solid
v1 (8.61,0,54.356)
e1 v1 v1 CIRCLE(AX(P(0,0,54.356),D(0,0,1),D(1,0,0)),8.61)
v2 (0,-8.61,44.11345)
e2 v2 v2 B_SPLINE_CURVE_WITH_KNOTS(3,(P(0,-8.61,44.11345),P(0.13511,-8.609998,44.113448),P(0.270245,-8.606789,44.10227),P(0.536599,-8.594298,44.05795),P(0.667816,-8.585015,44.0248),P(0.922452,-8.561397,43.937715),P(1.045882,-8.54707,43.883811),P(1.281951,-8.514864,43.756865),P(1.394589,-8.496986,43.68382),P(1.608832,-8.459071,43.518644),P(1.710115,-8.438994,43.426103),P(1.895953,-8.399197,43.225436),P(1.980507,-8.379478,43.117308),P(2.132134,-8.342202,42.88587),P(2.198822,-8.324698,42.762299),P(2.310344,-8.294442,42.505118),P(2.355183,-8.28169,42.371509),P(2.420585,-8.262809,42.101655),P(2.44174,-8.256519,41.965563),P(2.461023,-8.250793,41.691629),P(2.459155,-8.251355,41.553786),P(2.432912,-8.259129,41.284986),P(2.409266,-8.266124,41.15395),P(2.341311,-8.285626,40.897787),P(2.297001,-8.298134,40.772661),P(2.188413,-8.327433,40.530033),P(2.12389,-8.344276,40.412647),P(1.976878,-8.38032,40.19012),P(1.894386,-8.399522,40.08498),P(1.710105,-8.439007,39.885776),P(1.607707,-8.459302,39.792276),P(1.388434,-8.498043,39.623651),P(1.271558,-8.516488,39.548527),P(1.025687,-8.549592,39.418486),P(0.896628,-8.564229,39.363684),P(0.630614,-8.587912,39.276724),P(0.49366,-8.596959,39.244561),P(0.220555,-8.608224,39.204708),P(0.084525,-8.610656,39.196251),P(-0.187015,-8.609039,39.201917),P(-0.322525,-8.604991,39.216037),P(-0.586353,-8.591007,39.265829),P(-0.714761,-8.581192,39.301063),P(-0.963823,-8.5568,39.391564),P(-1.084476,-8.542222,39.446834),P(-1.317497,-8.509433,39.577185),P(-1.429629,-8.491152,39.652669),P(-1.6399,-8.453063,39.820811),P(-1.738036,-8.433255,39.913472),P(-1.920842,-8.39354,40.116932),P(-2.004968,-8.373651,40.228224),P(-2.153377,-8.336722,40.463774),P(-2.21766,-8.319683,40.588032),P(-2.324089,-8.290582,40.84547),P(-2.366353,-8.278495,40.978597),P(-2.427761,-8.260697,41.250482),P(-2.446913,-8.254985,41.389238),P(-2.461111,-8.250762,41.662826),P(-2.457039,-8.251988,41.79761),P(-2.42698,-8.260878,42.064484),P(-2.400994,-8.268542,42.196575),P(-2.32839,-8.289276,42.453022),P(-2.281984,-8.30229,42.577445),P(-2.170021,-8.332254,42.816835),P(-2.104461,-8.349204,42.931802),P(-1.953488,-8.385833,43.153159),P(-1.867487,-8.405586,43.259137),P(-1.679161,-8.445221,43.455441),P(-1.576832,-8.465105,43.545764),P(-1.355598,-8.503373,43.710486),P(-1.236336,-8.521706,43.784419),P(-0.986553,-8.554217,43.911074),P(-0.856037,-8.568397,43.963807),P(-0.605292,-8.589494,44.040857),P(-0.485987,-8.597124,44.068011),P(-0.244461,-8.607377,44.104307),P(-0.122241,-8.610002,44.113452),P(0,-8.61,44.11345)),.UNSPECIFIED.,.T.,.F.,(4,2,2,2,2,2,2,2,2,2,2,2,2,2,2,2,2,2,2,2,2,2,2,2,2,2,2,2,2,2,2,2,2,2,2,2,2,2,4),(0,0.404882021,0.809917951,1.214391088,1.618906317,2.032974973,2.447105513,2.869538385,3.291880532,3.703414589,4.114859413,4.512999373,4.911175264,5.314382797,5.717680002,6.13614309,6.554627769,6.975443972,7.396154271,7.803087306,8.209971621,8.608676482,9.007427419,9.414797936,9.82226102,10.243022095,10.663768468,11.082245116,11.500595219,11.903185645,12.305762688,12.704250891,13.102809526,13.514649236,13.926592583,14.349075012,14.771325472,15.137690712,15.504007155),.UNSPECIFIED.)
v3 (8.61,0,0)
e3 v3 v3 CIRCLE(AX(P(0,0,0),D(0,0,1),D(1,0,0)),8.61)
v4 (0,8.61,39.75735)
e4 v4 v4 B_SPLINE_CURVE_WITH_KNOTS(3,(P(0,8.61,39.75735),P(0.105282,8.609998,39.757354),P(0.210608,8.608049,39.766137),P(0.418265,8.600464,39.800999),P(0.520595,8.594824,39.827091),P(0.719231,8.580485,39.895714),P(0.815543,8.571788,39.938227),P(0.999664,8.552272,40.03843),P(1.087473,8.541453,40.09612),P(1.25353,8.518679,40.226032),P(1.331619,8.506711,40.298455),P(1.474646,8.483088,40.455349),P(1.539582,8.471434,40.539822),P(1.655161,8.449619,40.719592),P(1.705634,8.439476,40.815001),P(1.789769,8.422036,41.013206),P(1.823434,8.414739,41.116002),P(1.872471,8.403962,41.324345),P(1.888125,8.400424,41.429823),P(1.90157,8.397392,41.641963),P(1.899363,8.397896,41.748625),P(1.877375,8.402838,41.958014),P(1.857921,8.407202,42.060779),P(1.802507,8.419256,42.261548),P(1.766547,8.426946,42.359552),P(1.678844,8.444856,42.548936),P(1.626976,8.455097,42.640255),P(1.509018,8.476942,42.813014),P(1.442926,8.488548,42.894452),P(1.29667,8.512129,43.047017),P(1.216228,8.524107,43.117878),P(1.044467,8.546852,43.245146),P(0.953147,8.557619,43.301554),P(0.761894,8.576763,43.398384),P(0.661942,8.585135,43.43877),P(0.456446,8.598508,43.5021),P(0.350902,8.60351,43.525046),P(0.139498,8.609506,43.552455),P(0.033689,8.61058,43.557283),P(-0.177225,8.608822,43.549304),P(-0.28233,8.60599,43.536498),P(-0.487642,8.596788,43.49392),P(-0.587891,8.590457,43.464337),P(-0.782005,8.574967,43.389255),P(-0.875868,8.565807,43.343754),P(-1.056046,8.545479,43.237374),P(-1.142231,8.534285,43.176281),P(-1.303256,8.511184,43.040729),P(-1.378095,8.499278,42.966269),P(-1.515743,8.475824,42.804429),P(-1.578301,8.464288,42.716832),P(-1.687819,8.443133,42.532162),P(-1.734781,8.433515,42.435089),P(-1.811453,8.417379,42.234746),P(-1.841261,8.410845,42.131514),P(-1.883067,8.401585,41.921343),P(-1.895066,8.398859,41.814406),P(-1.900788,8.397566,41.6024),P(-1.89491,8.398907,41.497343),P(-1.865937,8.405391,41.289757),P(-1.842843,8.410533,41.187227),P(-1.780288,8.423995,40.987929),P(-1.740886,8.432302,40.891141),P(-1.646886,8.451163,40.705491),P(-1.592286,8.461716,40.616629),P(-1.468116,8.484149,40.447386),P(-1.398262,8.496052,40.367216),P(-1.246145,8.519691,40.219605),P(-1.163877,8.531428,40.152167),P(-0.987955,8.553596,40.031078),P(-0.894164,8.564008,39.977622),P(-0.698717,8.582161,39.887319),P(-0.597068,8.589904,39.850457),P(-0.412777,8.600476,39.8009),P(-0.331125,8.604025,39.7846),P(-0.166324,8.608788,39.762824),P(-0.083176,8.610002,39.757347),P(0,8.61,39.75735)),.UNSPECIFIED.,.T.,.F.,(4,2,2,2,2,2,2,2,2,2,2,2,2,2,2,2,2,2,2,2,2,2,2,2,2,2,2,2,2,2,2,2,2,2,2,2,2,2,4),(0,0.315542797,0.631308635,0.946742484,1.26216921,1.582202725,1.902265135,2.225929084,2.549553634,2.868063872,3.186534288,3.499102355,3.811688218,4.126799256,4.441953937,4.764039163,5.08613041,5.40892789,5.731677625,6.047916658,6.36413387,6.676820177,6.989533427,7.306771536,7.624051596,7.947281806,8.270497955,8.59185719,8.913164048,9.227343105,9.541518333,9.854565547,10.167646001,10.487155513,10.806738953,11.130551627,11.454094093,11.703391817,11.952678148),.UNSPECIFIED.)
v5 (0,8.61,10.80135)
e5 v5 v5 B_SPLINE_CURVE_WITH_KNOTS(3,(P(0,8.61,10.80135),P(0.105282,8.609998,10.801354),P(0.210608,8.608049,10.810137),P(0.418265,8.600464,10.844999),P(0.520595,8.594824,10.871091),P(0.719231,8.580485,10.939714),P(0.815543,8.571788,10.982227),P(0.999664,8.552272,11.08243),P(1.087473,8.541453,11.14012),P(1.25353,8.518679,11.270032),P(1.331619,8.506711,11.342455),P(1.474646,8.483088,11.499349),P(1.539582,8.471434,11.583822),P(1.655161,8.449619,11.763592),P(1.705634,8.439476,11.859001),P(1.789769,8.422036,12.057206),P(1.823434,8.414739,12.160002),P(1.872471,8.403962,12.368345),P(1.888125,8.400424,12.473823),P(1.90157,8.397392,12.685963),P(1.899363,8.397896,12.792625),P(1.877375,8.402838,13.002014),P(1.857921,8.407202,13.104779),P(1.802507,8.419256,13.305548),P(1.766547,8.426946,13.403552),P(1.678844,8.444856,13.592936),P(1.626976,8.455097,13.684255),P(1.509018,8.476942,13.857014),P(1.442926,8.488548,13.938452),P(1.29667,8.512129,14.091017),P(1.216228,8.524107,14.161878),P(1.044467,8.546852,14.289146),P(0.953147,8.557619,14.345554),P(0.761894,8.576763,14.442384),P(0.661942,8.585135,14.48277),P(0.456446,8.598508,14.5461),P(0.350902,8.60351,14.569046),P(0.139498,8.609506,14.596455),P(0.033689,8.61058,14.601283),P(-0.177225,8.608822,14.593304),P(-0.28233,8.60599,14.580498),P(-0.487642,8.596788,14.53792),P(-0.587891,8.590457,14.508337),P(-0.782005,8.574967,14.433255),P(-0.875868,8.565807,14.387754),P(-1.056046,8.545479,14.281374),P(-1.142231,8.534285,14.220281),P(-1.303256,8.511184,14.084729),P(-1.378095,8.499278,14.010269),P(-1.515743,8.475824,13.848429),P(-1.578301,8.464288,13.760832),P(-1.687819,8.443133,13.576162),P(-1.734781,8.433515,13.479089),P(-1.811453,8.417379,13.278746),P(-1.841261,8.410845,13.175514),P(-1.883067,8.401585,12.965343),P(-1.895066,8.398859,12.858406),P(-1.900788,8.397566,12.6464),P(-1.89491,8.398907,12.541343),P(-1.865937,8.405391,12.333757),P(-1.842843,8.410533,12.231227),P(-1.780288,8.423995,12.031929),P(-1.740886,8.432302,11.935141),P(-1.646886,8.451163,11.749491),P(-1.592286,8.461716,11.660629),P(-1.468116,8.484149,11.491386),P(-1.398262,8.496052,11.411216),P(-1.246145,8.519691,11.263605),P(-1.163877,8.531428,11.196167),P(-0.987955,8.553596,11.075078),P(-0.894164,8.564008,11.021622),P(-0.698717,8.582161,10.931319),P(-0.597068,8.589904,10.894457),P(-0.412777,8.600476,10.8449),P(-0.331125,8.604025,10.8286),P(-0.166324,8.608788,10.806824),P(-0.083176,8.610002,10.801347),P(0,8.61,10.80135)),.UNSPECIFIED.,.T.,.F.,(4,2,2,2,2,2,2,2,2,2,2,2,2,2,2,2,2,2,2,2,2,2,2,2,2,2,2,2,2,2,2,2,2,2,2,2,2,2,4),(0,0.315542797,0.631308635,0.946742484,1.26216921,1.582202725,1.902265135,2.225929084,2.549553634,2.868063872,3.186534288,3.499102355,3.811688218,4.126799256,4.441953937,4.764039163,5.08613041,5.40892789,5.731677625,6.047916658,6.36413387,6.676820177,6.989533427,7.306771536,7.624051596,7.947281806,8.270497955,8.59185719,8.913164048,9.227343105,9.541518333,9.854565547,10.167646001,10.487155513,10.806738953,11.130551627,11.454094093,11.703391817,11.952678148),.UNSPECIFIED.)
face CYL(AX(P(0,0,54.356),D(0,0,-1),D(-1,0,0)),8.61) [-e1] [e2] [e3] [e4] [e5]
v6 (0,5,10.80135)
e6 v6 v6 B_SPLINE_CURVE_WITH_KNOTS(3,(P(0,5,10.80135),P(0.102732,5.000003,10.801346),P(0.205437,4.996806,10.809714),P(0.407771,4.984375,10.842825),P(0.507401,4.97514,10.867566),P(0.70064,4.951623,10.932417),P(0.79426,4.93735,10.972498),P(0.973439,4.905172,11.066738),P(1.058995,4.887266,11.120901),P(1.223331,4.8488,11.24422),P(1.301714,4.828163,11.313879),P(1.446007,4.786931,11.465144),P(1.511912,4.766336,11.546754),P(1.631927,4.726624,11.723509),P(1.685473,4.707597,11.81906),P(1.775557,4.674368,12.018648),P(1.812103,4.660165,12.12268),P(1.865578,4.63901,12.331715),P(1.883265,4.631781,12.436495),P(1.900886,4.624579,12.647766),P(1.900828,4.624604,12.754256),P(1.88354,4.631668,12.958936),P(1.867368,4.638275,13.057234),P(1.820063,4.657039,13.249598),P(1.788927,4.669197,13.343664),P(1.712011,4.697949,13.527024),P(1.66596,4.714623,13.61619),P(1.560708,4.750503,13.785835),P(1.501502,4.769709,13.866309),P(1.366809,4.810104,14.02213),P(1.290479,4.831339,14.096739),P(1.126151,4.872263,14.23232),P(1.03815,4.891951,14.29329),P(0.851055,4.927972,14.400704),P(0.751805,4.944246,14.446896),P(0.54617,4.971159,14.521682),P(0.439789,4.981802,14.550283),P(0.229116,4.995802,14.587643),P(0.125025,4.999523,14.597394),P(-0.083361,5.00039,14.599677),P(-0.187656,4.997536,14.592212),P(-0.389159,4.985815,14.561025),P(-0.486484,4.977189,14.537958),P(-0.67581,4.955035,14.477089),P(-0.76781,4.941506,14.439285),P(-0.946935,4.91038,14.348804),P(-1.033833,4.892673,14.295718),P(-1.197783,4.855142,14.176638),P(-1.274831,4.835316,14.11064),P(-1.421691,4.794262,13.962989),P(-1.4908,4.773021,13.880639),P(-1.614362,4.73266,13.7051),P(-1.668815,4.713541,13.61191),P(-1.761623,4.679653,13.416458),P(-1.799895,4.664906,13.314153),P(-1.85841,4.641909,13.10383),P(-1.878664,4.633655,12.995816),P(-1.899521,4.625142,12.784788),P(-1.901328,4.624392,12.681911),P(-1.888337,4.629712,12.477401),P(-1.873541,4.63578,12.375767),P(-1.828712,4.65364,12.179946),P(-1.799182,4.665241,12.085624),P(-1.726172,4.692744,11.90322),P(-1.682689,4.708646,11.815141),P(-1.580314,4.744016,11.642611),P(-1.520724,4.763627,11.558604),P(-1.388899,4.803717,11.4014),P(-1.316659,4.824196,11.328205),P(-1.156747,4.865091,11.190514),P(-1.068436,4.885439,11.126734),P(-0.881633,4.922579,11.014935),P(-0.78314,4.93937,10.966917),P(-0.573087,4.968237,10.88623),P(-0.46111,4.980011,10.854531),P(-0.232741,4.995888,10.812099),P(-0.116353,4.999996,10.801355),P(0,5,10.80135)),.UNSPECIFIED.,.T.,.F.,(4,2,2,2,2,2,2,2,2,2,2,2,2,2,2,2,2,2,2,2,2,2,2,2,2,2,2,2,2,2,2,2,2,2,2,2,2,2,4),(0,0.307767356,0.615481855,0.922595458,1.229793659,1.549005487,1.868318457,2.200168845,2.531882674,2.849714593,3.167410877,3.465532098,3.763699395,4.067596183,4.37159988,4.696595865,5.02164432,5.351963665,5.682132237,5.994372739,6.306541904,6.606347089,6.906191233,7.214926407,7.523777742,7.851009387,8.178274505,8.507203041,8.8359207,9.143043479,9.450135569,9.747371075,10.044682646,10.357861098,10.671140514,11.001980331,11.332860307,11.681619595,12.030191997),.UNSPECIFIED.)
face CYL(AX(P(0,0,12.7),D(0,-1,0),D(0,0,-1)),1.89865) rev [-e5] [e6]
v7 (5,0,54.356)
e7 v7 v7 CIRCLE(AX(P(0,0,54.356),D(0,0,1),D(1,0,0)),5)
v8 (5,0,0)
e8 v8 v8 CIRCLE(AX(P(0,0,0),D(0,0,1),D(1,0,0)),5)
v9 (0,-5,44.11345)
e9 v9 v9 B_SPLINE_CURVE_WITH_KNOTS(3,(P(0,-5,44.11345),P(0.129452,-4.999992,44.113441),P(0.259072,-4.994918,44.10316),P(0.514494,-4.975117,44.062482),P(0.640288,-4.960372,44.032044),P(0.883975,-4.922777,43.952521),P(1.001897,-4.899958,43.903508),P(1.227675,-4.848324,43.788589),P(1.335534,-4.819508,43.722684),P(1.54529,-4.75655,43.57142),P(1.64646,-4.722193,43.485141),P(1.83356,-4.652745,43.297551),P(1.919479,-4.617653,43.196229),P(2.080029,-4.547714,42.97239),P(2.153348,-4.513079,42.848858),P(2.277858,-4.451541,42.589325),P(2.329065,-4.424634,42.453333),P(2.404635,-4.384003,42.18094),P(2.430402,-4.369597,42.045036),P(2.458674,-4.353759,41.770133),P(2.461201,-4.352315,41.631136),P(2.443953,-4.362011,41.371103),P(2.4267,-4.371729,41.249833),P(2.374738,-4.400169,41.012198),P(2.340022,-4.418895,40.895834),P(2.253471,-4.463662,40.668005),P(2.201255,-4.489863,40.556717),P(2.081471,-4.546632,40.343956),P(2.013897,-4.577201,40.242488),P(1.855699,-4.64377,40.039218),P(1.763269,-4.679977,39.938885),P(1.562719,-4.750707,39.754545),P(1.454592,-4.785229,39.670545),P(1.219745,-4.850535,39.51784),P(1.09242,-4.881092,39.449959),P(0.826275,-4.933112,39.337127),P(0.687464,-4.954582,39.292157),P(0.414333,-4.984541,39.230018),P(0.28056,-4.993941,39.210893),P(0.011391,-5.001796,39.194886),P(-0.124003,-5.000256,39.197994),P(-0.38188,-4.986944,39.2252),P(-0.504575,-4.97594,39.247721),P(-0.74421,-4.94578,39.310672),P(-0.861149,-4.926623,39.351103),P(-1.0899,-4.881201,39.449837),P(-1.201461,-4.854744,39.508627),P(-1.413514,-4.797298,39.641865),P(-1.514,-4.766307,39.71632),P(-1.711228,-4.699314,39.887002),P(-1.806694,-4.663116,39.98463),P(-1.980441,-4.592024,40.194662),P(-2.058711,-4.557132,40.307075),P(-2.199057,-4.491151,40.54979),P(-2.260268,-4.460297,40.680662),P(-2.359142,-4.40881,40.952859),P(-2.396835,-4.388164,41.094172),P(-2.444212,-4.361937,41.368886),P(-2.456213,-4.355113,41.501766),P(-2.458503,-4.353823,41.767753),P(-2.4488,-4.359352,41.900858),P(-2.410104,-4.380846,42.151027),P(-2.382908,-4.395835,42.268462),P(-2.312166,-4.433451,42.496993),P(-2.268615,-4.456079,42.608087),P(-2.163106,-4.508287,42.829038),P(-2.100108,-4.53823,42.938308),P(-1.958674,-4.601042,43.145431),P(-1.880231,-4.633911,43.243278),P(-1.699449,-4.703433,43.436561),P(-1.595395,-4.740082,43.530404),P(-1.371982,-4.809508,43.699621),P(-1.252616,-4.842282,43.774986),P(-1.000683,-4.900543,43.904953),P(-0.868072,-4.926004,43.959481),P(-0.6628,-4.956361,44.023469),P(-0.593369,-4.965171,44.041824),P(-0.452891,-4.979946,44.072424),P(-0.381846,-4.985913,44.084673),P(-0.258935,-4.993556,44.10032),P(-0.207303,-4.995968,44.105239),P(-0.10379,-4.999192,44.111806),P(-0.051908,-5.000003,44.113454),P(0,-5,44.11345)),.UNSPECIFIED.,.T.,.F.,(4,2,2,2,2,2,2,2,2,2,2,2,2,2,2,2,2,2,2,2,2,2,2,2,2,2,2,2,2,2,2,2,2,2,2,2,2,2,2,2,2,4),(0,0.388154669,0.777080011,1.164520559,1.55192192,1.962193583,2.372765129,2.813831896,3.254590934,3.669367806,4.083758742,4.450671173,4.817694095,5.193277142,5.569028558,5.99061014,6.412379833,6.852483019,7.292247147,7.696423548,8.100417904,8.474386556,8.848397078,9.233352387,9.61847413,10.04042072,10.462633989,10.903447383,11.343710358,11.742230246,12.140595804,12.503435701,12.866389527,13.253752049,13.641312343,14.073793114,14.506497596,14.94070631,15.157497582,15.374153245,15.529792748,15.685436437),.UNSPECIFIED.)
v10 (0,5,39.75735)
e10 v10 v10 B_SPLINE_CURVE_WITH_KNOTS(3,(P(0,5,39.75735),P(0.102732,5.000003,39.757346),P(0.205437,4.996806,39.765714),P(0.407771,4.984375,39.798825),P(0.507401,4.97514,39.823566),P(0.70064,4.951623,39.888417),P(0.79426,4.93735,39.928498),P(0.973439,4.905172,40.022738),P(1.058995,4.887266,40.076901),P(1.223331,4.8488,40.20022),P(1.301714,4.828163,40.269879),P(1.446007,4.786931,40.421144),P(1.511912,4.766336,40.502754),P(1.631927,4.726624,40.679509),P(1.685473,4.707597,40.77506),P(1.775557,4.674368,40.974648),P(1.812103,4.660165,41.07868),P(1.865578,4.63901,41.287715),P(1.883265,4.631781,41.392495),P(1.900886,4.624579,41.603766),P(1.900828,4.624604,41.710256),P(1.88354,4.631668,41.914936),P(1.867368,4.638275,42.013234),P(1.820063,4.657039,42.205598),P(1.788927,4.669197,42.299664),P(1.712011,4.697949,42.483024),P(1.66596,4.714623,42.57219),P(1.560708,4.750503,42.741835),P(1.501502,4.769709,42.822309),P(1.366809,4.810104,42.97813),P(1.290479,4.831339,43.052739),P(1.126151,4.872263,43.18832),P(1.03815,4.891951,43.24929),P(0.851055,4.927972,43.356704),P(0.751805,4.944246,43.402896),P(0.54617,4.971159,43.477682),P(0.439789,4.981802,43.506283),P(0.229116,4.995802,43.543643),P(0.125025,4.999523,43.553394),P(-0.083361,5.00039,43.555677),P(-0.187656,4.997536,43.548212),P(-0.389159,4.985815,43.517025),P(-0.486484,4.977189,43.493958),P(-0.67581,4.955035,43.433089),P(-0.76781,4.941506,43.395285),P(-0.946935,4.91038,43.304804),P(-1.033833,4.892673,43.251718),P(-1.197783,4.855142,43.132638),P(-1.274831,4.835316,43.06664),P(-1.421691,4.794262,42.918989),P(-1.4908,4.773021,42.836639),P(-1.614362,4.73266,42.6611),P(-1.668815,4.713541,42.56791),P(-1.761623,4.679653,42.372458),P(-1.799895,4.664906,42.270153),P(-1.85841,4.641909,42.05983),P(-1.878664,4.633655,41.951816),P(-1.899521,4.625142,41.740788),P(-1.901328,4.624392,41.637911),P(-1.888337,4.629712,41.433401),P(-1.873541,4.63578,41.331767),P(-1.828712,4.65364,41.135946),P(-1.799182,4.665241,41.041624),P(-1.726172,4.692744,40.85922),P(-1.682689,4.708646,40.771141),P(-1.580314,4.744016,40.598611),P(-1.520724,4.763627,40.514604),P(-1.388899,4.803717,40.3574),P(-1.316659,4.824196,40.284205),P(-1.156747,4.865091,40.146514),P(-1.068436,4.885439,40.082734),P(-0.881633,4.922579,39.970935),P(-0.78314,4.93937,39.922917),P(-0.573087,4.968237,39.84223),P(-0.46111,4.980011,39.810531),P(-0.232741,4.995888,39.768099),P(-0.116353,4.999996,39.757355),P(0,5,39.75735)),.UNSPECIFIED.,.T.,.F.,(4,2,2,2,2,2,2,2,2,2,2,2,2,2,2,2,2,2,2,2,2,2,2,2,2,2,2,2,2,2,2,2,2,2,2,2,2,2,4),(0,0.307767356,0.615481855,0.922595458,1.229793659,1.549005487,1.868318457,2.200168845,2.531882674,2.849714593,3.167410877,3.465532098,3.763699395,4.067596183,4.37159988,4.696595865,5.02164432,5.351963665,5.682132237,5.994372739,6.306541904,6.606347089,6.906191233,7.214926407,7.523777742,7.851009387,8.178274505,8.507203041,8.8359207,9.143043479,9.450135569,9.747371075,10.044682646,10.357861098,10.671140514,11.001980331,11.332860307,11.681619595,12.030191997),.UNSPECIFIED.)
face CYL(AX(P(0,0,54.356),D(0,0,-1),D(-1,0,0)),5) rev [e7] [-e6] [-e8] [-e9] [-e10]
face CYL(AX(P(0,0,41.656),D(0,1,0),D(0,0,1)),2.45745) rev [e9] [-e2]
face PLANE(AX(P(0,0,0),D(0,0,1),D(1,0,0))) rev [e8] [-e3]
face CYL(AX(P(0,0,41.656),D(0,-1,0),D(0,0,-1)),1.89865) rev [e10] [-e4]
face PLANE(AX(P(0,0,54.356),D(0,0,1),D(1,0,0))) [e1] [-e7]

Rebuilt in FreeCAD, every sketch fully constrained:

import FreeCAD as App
import Part
import Sketcher
from FreeCAD import Vector

doc = App.newDocument("Part")
body = doc.addObject("PartDesign::Body", "Body")

sketch1 = body.newObject("Sketcher::SketchObject", "Sketch")
sketch1.AttachmentSupport = (doc.getObject("XY_Plane"), [""])
sketch1.MapMode = "FlatFace"
sketch1.addGeometry([
    Part.Circle(Vector(0, 0, 0), Vector(0, 0, 1), 8.6),
    Part.Circle(Vector(0, 0, 0), Vector(0, 0, 1), 5),
], False)
sketch1.addConstraint([
    Sketcher.Constraint("Coincident", 0, 3, -1, 1),
    Sketcher.Constraint("Coincident", 1, 3, -1, 1),
    Sketcher.Constraint("Diameter", 1, 10.0),
    Sketcher.Constraint("Diameter", 0, 17.22),
])
pad1 = body.newObject("PartDesign::Pad", "Pad")
pad1.Profile = sketch1
pad1.Length = 54.356

sketch2 = body.newObject("Sketcher::SketchObject", "Sketch001")
sketch2.AttachmentSupport = (doc.getObject("YZ_Plane"), [""])
sketch2.MapMode = "FlatFace"
sketch2.addGeometry([
    Part.LineSegment(Vector(8.6, 12.7, 0), Vector(0, 12.7, 0)),
    Part.LineSegment(Vector(0, 12.7, 0), Vector(0, 10.8, 0)),
    Part.LineSegment(Vector(0, 10.8, 0), Vector(8.6, 10.8, 0)),
    Part.LineSegment(Vector(8.6, 10.8, 0), Vector(8.6, 12.7, 0)),
], False)
sketch2.addGeometry(Part.LineSegment(Vector(0, 12.7, 0), Vector(8.6, 12.7, 0)), True)
sketch2.addConstraint([
    Sketcher.Constraint("Coincident", 0, 2, 1, 1),
    Sketcher.Constraint("Coincident", 1, 2, 2, 1),
    Sketcher.Constraint("Coincident", 2, 2, 3, 1),
    Sketcher.Constraint("Coincident", 3, 2, 0, 1),
    Sketcher.Constraint("Horizontal", 0),
    Sketcher.Constraint("Vertical", 1),
    Sketcher.Constraint("Horizontal", 2),
    Sketcher.Constraint("Vertical", 3),
    Sketcher.Constraint("Horizontal", 4),
    Sketcher.Constraint("Coincident", 4, 1, 0, 2),
    Sketcher.Constraint("PointOnObject", 0, 2, -2),
    Sketcher.Constraint("Vertical", 2, 2, 4, 2),
    Sketcher.Constraint("DistanceX", 0, 2, 0, 1, 8.61),
    Sketcher.Constraint("DistanceY", -1, 1, 0, 2, 12.7),
    Sketcher.Constraint("DistanceY", 1, 2, 1, 1, 1.89865),
])
groove = body.newObject("PartDesign::Groove", "Groove")
groove.Profile = sketch2
groove.ReferenceAxis = (sketch2, ["Axis0"])
groove.Angle = 360
doc.recompute()

linearpattern = body.newObject("PartDesign::LinearPattern", "LinearPattern")
linearpattern.Originals = [groove]
linearpattern.Direction = (doc.getObject("Z_Axis"), [""])
linearpattern.Mode = "offset"
linearpattern.Offset = 28.956
linearpattern.Occurrences = 2
body.Tip = linearpattern

sketch3 = body.newObject("Sketcher::SketchObject", "Sketch002")
sketch3.AttachmentSupport = (doc.getObject("YZ_Plane"), [""])
sketch3.MapMode = "FlatFace"
sketch3.addGeometry([
    Part.LineSegment(Vector(-8.6, 41.7, 0), Vector(0, 41.7, 0)),
    Part.LineSegment(Vector(0, 41.7, 0), Vector(0, 44.1, 0)),
    Part.LineSegment(Vector(0, 44.1, 0), Vector(-8.6, 44.1, 0)),
    Part.LineSegment(Vector(-8.6, 44.1, 0), Vector(-8.6, 41.7, 0)),
], False)
sketch3.addGeometry(Part.LineSegment(Vector(0, 41.7, 0), Vector(-8.6, 41.7, 0)), True)
sketch3.addConstraint([
    Sketcher.Constraint("Coincident", 0, 2, 1, 1),
    Sketcher.Constraint("Coincident", 1, 2, 2, 1),
    Sketcher.Constraint("Coincident", 2, 2, 3, 1),
    Sketcher.Constraint("Coincident", 3, 2, 0, 1),
    Sketcher.Constraint("Horizontal", 0),
    Sketcher.Constraint("Vertical", 1),
    Sketcher.Constraint("Horizontal", 2),
    Sketcher.Constraint("Vertical", 3),
    Sketcher.Constraint("Horizontal", 4),
    Sketcher.Constraint("Coincident", 4, 1, 0, 2),
    Sketcher.Constraint("PointOnObject", 0, 2, -2),
    Sketcher.Constraint("Vertical", 2, 2, 4, 2),
    Sketcher.Constraint("DistanceX", 0, 1, 0, 2, 8.61),
    Sketcher.Constraint("DistanceY", -1, 1, 0, 2, 41.656),
    Sketcher.Constraint("DistanceY", 1, 1, 1, 2, 2.45745),
])
groove2 = body.newObject("PartDesign::Groove", "Groove001")
groove2.Profile = sketch3
groove2.ReferenceAxis = (sketch3, ["Axis0"])
groove2.Angle = 360

doc.recompute()
